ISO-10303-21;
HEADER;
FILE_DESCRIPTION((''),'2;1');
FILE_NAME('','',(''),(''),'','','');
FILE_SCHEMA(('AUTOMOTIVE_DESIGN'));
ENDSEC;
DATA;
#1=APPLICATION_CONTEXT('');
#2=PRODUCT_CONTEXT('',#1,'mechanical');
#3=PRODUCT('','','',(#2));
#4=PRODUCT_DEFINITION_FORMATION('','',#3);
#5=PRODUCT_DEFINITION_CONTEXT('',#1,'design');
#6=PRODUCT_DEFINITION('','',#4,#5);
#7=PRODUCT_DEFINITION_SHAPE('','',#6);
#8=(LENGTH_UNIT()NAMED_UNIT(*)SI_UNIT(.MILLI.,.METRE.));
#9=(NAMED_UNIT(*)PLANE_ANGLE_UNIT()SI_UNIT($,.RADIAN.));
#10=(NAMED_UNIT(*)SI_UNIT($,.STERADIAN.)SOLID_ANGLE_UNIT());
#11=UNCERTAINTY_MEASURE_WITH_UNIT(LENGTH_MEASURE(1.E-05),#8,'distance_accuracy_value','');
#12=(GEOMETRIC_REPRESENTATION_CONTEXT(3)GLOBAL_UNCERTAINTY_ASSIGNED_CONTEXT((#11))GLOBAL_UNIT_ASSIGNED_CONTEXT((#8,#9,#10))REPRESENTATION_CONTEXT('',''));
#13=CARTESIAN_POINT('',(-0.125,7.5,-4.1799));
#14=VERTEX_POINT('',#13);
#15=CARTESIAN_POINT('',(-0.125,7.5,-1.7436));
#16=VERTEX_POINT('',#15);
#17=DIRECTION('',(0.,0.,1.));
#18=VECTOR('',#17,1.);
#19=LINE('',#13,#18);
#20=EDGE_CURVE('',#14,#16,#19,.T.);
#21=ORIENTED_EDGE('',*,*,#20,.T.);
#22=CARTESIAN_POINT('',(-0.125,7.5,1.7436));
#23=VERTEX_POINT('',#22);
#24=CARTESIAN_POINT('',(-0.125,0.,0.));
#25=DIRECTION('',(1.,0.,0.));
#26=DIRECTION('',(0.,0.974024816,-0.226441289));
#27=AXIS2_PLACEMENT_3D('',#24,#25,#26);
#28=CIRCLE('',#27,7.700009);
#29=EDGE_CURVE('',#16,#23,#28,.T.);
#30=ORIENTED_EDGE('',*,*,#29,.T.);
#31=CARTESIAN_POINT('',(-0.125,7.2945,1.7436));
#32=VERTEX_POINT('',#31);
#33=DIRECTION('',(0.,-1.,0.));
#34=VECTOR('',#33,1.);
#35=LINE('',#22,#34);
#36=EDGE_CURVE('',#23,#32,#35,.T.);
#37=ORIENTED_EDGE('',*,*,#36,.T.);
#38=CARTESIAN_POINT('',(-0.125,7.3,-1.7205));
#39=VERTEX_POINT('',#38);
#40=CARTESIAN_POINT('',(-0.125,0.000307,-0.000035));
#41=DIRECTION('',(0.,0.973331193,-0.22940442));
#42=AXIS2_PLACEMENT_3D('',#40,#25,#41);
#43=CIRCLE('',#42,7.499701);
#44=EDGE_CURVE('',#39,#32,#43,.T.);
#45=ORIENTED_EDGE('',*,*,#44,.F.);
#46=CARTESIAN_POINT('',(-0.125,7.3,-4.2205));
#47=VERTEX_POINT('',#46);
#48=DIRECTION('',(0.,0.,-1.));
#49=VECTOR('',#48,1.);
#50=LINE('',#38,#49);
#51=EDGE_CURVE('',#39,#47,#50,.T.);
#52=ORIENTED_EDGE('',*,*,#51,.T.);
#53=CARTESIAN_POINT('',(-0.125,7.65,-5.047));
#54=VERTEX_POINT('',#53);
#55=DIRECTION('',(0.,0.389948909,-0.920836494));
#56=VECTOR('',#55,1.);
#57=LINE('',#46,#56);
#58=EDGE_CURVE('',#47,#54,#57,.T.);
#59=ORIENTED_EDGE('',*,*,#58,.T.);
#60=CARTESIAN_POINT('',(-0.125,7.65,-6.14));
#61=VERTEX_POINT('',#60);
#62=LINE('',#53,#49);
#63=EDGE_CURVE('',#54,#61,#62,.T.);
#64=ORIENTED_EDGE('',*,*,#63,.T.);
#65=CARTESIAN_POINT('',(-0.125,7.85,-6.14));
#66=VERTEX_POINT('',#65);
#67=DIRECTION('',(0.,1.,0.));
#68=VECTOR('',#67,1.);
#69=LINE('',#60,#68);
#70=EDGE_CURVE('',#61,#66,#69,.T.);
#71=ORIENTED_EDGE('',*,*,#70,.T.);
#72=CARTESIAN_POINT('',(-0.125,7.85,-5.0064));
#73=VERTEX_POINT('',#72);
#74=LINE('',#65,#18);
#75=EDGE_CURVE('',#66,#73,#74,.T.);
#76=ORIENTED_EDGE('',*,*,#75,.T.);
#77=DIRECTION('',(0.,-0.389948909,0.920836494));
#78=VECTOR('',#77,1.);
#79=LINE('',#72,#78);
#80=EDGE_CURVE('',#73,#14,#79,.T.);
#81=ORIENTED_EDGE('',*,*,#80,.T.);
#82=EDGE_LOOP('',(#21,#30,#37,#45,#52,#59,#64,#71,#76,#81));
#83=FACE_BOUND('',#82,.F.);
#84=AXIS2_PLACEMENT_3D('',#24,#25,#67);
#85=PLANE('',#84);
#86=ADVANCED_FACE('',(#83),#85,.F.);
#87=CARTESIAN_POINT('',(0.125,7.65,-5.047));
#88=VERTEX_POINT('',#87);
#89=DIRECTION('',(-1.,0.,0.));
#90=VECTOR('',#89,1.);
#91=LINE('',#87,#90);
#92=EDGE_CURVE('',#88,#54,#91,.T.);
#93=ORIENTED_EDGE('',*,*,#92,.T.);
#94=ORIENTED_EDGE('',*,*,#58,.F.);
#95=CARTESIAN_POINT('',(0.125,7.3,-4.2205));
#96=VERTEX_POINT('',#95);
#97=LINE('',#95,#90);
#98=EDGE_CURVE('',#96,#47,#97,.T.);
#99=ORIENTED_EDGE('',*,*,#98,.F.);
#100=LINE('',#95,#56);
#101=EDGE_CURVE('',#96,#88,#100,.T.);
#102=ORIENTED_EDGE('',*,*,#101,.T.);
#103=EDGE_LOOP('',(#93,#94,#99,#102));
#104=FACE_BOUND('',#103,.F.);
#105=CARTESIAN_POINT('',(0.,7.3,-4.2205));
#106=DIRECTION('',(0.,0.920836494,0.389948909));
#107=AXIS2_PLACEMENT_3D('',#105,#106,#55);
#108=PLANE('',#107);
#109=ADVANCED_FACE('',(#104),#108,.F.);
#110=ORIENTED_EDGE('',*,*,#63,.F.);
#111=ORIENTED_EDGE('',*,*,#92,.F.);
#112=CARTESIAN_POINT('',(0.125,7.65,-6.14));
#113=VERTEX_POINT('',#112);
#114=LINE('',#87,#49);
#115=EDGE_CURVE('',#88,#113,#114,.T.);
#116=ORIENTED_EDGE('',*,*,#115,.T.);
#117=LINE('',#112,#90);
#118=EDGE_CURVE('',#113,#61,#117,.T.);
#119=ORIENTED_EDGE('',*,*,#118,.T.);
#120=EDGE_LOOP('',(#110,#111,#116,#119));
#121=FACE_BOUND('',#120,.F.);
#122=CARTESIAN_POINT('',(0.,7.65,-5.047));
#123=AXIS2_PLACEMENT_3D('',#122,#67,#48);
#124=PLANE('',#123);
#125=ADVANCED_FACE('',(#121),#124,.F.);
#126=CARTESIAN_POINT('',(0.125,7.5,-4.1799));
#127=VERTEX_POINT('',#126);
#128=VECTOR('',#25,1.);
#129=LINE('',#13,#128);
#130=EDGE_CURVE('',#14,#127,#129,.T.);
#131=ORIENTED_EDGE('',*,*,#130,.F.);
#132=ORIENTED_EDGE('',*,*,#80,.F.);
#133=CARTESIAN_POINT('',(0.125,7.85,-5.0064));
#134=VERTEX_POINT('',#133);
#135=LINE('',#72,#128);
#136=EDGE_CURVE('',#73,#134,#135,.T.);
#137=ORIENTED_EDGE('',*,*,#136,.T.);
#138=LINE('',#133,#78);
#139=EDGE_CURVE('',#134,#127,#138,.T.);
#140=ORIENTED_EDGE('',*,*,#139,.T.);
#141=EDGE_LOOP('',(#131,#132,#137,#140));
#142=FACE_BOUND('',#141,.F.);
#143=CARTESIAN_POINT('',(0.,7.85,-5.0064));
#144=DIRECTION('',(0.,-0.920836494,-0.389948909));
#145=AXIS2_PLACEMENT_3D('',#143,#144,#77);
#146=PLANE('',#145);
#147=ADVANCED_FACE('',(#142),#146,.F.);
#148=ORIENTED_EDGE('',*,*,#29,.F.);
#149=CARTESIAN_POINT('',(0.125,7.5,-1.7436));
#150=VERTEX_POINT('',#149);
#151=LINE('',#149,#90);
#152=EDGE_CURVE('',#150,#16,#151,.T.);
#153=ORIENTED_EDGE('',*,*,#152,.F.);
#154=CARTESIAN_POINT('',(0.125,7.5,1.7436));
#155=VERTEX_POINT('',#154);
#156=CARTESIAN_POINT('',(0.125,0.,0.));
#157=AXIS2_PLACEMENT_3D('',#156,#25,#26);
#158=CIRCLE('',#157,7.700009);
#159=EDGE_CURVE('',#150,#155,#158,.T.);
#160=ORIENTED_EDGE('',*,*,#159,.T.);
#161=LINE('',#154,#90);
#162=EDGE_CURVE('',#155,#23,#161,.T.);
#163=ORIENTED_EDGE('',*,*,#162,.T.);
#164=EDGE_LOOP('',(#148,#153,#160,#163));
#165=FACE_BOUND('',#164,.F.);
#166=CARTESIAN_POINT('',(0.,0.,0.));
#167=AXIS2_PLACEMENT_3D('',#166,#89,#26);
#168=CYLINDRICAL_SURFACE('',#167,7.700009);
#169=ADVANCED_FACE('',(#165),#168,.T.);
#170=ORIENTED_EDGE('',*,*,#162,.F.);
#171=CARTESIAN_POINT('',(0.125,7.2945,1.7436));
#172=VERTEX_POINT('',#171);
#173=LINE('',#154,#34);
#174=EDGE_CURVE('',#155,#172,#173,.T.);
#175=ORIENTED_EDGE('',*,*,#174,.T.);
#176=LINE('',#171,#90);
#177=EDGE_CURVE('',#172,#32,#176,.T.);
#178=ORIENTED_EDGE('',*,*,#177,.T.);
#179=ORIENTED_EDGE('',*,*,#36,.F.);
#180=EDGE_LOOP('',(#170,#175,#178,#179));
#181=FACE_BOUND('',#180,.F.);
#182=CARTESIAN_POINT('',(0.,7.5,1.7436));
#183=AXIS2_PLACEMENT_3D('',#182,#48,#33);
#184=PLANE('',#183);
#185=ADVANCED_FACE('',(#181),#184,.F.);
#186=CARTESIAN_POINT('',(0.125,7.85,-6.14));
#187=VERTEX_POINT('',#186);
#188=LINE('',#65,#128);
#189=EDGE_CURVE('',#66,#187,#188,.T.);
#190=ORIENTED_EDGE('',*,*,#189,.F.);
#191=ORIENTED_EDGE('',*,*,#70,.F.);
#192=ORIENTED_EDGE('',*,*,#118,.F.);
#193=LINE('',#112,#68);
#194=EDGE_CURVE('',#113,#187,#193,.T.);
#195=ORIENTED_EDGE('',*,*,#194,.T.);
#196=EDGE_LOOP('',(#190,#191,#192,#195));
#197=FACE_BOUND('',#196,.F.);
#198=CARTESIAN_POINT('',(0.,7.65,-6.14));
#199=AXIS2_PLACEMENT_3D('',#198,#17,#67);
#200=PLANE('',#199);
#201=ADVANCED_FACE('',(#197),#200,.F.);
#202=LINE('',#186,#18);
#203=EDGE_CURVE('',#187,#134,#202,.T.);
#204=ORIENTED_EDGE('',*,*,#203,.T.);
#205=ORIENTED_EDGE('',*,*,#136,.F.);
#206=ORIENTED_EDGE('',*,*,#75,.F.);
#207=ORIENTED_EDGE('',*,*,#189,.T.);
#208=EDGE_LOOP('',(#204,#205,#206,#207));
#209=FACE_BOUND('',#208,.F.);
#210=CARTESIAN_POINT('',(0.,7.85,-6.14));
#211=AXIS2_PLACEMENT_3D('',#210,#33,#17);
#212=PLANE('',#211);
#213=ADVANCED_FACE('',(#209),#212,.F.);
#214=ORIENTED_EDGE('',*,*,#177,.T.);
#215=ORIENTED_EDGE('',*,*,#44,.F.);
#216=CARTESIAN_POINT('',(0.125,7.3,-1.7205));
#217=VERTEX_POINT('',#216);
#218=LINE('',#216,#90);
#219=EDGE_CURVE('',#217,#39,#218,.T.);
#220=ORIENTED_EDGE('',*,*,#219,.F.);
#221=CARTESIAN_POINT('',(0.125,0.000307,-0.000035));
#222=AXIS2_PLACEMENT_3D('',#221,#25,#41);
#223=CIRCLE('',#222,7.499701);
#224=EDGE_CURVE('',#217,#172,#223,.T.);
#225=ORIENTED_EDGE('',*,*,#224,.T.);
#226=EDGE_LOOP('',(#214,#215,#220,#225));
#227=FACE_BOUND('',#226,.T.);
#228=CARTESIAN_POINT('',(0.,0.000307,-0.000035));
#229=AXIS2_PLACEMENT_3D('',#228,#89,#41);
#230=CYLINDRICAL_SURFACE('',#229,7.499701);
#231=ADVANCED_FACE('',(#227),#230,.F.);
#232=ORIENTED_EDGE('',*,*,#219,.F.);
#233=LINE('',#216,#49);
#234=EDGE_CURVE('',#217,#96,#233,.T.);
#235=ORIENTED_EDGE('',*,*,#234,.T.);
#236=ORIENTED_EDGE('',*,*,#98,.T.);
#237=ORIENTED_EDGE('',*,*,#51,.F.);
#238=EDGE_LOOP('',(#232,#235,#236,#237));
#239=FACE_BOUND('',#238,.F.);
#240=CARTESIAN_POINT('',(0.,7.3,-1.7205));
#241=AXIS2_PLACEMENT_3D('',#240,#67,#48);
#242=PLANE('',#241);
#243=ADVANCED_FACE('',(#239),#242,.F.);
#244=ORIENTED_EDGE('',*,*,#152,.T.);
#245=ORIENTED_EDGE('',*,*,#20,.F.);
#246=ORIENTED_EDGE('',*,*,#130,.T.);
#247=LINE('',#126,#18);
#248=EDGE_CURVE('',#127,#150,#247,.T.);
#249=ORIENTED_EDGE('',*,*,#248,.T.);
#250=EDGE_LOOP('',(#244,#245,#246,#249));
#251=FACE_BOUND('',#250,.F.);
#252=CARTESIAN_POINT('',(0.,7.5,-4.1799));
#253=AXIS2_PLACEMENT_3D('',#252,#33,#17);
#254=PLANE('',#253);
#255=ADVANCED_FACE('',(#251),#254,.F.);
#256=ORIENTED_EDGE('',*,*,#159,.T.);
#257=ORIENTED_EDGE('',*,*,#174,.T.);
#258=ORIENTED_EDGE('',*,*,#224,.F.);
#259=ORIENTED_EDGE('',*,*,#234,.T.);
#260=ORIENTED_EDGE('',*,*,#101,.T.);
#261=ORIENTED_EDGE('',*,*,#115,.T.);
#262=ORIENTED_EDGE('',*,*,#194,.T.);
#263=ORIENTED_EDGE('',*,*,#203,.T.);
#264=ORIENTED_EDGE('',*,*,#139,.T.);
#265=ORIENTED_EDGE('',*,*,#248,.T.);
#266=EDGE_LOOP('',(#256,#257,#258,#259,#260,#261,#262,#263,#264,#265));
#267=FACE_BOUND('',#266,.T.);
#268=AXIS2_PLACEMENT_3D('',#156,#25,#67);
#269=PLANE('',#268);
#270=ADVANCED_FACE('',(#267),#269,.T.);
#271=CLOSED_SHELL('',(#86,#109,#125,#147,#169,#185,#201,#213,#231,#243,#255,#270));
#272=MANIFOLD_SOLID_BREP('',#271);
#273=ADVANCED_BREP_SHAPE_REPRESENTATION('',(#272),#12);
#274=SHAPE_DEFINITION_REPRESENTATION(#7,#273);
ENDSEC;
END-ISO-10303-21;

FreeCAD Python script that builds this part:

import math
import FreeCAD as App
import Part
import Sketcher
from FreeCAD import Vector

doc = App.newDocument("Part")
body = doc.addObject("PartDesign::Body", "Body")

# Sketch on YZ plane
sketch1 = body.newObject("Sketcher::SketchObject", "Sketch")
sketch1.AttachmentSupport = (doc.getObject("YZ_Plane"), [""])
sketch1.MapMode = "FlatFace"
sketch1.addGeometry(Part.LineSegment(Vector(7.65, -6.14, 0), Vector(7.85, -6.14, 0)), False)
sketch1.addGeometry(Part.LineSegment(Vector(7.85, -6.14, 0), Vector(7.85, -5.01, 0)), False)
sketch1.addGeometry(Part.LineSegment(Vector(7.85, -5.01, 0), Vector(7.5, -4.18, 0)), False)
sketch1.addGeometry(Part.LineSegment(Vector(7.5, -4.18, 0), Vector(7.5, -1.74, 0)), False)
sketch1.addGeometry(Part.ArcOfCircle(Part.Circle(Vector(0, 0, 0), Vector(0, 0, 1), 7.7), math.radians(-13), math.radians(13)), False)
sketch1.addGeometry(Part.LineSegment(Vector(7.5, 1.74, 0), Vector(7.29, 1.74, 0)), False)
sketch1.addGeometry(Part.ArcOfCircle(Part.Circle(Vector(0, 0, 0), Vector(0, 0, 1), 7.5), math.radians(-13), math.radians(13)), False)
sketch1.addGeometry(Part.LineSegment(Vector(7.3, -1.72, 0), Vector(7.3, -4.22, 0)), False)
sketch1.addGeometry(Part.LineSegment(Vector(7.3, -4.22, 0), Vector(7.65, -5.05, 0)), False)
sketch1.addGeometry(Part.LineSegment(Vector(7.65, -5.05, 0), Vector(7.65, -6.14, 0)), False)
sketch1.addConstraint(Sketcher.Constraint("Coincident", 0, 2, 1, 1))
sketch1.addConstraint(Sketcher.Constraint("Coincident", 1, 2, 2, 1))
sketch1.addConstraint(Sketcher.Constraint("Coincident", 2, 2, 3, 1))
sketch1.addConstraint(Sketcher.Constraint("Coincident", 3, 2, 4, 1))
sketch1.addConstraint(Sketcher.Constraint("Coincident", 4, 2, 5, 1))
sketch1.addConstraint(Sketcher.Constraint("Coincident", 5, 2, 6, 2))
sketch1.addConstraint(Sketcher.Constraint("Coincident", 6, 1, 7, 1))
sketch1.addConstraint(Sketcher.Constraint("Coincident", 7, 2, 8, 1))
sketch1.addConstraint(Sketcher.Constraint("Coincident", 8, 2, 9, 1))
sketch1.addConstraint(Sketcher.Constraint("Coincident", 9, 2, 0, 1))
sketch1.addConstraint(Sketcher.Constraint("Horizontal", 0))
sketch1.addConstraint(Sketcher.Constraint("Vertical", 1))
sketch1.addConstraint(Sketcher.Constraint("Vertical", 3))
sketch1.addConstraint(Sketcher.Constraint("Horizontal", 5))
sketch1.addConstraint(Sketcher.Constraint("Vertical", 7))
sketch1.addConstraint(Sketcher.Constraint("Vertical", 9))
sketch1.addConstraint(Sketcher.Constraint("Coincident", 4, 3, -1, 1))
sketch1.addConstraint(Sketcher.Constraint("Coincident", 6, 3, -1, 1))
sketch1.addConstraint(Sketcher.Constraint("Parallel", 2, 8))
sketch1.addConstraint(Sketcher.Constraint("Vertical", 3, 2, 4, 2))
sketch1.addConstraint(Sketcher.Constraint("Equal", 2, 8))
sketch1.addConstraint(Sketcher.Constraint("Radius", 6, 7.5))
sketch1.addConstraint(Sketcher.Constraint("DistanceX", 0, 1, 0, 2, 0.2))
sketch1.addConstraint(Sketcher.Constraint("DistanceY", 7, 2, 7, 1, 2.5))
sketch1.addConstraint(Sketcher.Constraint("DistanceX", -1, 1, 2, 2, 7.5))
sketch1.addConstraint(Sketcher.Constraint("Radius", 4, 7.7))
sketch1.addConstraint(Sketcher.Constraint("DistanceY", 9, 2, 9, 1, 1.093))
sketch1.addConstraint(Sketcher.Constraint("DistanceY", 1, 2, 4, 2, 6.75))
sketch1.addConstraint(Sketcher.Constraint("DistanceX", -1, 1, 0, 2, 7.85))
sketch1.addConstraint(Sketcher.Constraint("DistanceY", 0, 2, -1, 1, 6.14))
pad1 = body.newObject("PartDesign::Pad", "Pad")
pad1.Profile = sketch1
pad1.Length = 0.25
pad1.Midplane = True

doc.recompute()
